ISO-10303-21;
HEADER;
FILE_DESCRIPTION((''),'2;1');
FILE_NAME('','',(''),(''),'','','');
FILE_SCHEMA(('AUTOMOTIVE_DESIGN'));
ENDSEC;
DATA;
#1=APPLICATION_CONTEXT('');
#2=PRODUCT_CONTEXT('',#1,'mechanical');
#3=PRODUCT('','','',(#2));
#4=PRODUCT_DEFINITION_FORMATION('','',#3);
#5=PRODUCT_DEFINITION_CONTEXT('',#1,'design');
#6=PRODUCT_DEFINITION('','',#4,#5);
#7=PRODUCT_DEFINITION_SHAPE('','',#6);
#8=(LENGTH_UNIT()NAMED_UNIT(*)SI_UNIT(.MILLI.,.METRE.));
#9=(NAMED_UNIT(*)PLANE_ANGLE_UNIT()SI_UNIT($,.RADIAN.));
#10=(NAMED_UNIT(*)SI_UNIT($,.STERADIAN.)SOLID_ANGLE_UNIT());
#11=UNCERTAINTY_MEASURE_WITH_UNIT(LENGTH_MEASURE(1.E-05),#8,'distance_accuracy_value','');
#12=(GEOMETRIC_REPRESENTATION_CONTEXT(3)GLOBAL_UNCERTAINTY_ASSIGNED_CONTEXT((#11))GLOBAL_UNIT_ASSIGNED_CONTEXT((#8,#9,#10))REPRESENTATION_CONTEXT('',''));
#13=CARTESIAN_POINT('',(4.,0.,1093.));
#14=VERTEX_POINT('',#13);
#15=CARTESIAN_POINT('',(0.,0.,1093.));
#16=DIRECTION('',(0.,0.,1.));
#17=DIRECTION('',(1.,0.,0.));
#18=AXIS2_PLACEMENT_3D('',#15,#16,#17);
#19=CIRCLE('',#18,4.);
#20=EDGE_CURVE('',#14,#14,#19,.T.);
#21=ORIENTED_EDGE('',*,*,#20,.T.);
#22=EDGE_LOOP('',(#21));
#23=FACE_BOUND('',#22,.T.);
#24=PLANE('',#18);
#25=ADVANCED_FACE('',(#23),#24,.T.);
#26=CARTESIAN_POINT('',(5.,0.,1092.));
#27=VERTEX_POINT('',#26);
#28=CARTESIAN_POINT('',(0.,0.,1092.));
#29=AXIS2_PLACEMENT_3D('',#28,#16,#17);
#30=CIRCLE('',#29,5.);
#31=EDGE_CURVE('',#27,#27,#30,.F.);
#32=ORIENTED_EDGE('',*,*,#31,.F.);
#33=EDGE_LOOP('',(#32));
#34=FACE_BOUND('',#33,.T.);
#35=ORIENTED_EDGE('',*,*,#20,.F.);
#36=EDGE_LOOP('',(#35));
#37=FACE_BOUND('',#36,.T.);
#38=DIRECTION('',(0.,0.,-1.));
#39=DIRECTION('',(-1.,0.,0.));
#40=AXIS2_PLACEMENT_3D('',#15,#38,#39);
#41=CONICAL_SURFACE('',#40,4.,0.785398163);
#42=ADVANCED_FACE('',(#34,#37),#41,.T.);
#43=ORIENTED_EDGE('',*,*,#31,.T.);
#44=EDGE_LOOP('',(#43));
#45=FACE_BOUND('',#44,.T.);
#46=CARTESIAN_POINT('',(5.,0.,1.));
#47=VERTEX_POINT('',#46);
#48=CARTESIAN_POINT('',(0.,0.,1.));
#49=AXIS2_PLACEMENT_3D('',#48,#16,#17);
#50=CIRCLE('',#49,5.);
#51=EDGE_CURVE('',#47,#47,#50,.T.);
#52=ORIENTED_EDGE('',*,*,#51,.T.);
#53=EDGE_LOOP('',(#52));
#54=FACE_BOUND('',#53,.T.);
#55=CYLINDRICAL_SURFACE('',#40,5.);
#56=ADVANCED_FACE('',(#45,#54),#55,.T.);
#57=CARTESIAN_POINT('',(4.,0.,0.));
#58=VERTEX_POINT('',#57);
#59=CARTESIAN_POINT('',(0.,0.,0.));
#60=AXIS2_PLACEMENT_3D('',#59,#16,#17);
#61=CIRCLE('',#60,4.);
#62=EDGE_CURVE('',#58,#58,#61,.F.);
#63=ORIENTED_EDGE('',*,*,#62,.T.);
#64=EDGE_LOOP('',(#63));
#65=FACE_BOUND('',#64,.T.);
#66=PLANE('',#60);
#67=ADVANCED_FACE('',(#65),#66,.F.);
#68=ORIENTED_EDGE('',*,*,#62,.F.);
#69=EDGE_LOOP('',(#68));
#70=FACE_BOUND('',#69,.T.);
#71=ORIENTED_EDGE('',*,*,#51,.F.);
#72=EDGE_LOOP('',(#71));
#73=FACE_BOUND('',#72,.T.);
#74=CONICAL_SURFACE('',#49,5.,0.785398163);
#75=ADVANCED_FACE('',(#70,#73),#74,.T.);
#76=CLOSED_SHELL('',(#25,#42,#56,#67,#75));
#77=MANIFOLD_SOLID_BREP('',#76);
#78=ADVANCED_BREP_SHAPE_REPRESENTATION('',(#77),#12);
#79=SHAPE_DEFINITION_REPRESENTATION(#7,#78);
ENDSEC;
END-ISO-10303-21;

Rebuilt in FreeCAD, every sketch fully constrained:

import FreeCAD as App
import Part
import Sketcher

V = App.Vector
Q = App.Units.Quantity


def edges_at(feature, points):
    """Names of the edges that pass closest to the given points."""
    edges = feature.Shape.Edges
    near = lambda p: min(range(len(edges)), key=lambda i: edges[i].distToShape(Part.Vertex(*p))[0])
    return sorted({f"Edge{near(p) + 1}" for p in points})

doc = App.newDocument("Part")
params = doc.addObject("Spreadsheet::Sheet", "Params")
for row, (alias, value) in enumerate([
    ("sketch1_diameter", "10 mm"),
    ("pad1_length", "1093 mm"),
    ("chamfer_size", "1 mm"),
], start=1):
    params.set(f"A{row}", alias)
    params.set(f"B{row}", "=" + value)
    params.setAlias(f"B{row}", alias)

body = doc.addObject("PartDesign::Body", "Body")

# Sketch on XY plane
sketch1 = doc.addObject("Sketcher::SketchObject", "Sketch")
body.addObject(sketch1)
sketch1.AttachmentSupport = (doc.XY_Plane, [""])
sketch1.MapMode = "FlatFace"
sketch1.addGeometry(Part.Circle(V(0, 0, 0), V(0, 0, 1), 5), False)
sketch1.addConstraint(Sketcher.Constraint("Coincident", 0, 3, -1, 1))
sketch1.addConstraint(Sketcher.Constraint("Diameter", 0, Q("10 mm")))
sketch1.setExpression("Constraints[1]", "Params.sketch1_diameter")
pad1 = doc.addObject("PartDesign::Pad", "Pad")
body.addObject(pad1)
pad1.Profile = sketch1
pad1.setExpression("Length", "Params.pad1_length")
doc.recompute()

chamfer = doc.addObject("PartDesign::Chamfer", "Chamfer")
body.addObject(chamfer)
chamfer.Base = (pad1, edges_at(pad1, [(-5, 0, 0), (-5, 0, 1093)]))
chamfer.setExpression("Size", "Params.chamfer_size")

doc.recompute()
